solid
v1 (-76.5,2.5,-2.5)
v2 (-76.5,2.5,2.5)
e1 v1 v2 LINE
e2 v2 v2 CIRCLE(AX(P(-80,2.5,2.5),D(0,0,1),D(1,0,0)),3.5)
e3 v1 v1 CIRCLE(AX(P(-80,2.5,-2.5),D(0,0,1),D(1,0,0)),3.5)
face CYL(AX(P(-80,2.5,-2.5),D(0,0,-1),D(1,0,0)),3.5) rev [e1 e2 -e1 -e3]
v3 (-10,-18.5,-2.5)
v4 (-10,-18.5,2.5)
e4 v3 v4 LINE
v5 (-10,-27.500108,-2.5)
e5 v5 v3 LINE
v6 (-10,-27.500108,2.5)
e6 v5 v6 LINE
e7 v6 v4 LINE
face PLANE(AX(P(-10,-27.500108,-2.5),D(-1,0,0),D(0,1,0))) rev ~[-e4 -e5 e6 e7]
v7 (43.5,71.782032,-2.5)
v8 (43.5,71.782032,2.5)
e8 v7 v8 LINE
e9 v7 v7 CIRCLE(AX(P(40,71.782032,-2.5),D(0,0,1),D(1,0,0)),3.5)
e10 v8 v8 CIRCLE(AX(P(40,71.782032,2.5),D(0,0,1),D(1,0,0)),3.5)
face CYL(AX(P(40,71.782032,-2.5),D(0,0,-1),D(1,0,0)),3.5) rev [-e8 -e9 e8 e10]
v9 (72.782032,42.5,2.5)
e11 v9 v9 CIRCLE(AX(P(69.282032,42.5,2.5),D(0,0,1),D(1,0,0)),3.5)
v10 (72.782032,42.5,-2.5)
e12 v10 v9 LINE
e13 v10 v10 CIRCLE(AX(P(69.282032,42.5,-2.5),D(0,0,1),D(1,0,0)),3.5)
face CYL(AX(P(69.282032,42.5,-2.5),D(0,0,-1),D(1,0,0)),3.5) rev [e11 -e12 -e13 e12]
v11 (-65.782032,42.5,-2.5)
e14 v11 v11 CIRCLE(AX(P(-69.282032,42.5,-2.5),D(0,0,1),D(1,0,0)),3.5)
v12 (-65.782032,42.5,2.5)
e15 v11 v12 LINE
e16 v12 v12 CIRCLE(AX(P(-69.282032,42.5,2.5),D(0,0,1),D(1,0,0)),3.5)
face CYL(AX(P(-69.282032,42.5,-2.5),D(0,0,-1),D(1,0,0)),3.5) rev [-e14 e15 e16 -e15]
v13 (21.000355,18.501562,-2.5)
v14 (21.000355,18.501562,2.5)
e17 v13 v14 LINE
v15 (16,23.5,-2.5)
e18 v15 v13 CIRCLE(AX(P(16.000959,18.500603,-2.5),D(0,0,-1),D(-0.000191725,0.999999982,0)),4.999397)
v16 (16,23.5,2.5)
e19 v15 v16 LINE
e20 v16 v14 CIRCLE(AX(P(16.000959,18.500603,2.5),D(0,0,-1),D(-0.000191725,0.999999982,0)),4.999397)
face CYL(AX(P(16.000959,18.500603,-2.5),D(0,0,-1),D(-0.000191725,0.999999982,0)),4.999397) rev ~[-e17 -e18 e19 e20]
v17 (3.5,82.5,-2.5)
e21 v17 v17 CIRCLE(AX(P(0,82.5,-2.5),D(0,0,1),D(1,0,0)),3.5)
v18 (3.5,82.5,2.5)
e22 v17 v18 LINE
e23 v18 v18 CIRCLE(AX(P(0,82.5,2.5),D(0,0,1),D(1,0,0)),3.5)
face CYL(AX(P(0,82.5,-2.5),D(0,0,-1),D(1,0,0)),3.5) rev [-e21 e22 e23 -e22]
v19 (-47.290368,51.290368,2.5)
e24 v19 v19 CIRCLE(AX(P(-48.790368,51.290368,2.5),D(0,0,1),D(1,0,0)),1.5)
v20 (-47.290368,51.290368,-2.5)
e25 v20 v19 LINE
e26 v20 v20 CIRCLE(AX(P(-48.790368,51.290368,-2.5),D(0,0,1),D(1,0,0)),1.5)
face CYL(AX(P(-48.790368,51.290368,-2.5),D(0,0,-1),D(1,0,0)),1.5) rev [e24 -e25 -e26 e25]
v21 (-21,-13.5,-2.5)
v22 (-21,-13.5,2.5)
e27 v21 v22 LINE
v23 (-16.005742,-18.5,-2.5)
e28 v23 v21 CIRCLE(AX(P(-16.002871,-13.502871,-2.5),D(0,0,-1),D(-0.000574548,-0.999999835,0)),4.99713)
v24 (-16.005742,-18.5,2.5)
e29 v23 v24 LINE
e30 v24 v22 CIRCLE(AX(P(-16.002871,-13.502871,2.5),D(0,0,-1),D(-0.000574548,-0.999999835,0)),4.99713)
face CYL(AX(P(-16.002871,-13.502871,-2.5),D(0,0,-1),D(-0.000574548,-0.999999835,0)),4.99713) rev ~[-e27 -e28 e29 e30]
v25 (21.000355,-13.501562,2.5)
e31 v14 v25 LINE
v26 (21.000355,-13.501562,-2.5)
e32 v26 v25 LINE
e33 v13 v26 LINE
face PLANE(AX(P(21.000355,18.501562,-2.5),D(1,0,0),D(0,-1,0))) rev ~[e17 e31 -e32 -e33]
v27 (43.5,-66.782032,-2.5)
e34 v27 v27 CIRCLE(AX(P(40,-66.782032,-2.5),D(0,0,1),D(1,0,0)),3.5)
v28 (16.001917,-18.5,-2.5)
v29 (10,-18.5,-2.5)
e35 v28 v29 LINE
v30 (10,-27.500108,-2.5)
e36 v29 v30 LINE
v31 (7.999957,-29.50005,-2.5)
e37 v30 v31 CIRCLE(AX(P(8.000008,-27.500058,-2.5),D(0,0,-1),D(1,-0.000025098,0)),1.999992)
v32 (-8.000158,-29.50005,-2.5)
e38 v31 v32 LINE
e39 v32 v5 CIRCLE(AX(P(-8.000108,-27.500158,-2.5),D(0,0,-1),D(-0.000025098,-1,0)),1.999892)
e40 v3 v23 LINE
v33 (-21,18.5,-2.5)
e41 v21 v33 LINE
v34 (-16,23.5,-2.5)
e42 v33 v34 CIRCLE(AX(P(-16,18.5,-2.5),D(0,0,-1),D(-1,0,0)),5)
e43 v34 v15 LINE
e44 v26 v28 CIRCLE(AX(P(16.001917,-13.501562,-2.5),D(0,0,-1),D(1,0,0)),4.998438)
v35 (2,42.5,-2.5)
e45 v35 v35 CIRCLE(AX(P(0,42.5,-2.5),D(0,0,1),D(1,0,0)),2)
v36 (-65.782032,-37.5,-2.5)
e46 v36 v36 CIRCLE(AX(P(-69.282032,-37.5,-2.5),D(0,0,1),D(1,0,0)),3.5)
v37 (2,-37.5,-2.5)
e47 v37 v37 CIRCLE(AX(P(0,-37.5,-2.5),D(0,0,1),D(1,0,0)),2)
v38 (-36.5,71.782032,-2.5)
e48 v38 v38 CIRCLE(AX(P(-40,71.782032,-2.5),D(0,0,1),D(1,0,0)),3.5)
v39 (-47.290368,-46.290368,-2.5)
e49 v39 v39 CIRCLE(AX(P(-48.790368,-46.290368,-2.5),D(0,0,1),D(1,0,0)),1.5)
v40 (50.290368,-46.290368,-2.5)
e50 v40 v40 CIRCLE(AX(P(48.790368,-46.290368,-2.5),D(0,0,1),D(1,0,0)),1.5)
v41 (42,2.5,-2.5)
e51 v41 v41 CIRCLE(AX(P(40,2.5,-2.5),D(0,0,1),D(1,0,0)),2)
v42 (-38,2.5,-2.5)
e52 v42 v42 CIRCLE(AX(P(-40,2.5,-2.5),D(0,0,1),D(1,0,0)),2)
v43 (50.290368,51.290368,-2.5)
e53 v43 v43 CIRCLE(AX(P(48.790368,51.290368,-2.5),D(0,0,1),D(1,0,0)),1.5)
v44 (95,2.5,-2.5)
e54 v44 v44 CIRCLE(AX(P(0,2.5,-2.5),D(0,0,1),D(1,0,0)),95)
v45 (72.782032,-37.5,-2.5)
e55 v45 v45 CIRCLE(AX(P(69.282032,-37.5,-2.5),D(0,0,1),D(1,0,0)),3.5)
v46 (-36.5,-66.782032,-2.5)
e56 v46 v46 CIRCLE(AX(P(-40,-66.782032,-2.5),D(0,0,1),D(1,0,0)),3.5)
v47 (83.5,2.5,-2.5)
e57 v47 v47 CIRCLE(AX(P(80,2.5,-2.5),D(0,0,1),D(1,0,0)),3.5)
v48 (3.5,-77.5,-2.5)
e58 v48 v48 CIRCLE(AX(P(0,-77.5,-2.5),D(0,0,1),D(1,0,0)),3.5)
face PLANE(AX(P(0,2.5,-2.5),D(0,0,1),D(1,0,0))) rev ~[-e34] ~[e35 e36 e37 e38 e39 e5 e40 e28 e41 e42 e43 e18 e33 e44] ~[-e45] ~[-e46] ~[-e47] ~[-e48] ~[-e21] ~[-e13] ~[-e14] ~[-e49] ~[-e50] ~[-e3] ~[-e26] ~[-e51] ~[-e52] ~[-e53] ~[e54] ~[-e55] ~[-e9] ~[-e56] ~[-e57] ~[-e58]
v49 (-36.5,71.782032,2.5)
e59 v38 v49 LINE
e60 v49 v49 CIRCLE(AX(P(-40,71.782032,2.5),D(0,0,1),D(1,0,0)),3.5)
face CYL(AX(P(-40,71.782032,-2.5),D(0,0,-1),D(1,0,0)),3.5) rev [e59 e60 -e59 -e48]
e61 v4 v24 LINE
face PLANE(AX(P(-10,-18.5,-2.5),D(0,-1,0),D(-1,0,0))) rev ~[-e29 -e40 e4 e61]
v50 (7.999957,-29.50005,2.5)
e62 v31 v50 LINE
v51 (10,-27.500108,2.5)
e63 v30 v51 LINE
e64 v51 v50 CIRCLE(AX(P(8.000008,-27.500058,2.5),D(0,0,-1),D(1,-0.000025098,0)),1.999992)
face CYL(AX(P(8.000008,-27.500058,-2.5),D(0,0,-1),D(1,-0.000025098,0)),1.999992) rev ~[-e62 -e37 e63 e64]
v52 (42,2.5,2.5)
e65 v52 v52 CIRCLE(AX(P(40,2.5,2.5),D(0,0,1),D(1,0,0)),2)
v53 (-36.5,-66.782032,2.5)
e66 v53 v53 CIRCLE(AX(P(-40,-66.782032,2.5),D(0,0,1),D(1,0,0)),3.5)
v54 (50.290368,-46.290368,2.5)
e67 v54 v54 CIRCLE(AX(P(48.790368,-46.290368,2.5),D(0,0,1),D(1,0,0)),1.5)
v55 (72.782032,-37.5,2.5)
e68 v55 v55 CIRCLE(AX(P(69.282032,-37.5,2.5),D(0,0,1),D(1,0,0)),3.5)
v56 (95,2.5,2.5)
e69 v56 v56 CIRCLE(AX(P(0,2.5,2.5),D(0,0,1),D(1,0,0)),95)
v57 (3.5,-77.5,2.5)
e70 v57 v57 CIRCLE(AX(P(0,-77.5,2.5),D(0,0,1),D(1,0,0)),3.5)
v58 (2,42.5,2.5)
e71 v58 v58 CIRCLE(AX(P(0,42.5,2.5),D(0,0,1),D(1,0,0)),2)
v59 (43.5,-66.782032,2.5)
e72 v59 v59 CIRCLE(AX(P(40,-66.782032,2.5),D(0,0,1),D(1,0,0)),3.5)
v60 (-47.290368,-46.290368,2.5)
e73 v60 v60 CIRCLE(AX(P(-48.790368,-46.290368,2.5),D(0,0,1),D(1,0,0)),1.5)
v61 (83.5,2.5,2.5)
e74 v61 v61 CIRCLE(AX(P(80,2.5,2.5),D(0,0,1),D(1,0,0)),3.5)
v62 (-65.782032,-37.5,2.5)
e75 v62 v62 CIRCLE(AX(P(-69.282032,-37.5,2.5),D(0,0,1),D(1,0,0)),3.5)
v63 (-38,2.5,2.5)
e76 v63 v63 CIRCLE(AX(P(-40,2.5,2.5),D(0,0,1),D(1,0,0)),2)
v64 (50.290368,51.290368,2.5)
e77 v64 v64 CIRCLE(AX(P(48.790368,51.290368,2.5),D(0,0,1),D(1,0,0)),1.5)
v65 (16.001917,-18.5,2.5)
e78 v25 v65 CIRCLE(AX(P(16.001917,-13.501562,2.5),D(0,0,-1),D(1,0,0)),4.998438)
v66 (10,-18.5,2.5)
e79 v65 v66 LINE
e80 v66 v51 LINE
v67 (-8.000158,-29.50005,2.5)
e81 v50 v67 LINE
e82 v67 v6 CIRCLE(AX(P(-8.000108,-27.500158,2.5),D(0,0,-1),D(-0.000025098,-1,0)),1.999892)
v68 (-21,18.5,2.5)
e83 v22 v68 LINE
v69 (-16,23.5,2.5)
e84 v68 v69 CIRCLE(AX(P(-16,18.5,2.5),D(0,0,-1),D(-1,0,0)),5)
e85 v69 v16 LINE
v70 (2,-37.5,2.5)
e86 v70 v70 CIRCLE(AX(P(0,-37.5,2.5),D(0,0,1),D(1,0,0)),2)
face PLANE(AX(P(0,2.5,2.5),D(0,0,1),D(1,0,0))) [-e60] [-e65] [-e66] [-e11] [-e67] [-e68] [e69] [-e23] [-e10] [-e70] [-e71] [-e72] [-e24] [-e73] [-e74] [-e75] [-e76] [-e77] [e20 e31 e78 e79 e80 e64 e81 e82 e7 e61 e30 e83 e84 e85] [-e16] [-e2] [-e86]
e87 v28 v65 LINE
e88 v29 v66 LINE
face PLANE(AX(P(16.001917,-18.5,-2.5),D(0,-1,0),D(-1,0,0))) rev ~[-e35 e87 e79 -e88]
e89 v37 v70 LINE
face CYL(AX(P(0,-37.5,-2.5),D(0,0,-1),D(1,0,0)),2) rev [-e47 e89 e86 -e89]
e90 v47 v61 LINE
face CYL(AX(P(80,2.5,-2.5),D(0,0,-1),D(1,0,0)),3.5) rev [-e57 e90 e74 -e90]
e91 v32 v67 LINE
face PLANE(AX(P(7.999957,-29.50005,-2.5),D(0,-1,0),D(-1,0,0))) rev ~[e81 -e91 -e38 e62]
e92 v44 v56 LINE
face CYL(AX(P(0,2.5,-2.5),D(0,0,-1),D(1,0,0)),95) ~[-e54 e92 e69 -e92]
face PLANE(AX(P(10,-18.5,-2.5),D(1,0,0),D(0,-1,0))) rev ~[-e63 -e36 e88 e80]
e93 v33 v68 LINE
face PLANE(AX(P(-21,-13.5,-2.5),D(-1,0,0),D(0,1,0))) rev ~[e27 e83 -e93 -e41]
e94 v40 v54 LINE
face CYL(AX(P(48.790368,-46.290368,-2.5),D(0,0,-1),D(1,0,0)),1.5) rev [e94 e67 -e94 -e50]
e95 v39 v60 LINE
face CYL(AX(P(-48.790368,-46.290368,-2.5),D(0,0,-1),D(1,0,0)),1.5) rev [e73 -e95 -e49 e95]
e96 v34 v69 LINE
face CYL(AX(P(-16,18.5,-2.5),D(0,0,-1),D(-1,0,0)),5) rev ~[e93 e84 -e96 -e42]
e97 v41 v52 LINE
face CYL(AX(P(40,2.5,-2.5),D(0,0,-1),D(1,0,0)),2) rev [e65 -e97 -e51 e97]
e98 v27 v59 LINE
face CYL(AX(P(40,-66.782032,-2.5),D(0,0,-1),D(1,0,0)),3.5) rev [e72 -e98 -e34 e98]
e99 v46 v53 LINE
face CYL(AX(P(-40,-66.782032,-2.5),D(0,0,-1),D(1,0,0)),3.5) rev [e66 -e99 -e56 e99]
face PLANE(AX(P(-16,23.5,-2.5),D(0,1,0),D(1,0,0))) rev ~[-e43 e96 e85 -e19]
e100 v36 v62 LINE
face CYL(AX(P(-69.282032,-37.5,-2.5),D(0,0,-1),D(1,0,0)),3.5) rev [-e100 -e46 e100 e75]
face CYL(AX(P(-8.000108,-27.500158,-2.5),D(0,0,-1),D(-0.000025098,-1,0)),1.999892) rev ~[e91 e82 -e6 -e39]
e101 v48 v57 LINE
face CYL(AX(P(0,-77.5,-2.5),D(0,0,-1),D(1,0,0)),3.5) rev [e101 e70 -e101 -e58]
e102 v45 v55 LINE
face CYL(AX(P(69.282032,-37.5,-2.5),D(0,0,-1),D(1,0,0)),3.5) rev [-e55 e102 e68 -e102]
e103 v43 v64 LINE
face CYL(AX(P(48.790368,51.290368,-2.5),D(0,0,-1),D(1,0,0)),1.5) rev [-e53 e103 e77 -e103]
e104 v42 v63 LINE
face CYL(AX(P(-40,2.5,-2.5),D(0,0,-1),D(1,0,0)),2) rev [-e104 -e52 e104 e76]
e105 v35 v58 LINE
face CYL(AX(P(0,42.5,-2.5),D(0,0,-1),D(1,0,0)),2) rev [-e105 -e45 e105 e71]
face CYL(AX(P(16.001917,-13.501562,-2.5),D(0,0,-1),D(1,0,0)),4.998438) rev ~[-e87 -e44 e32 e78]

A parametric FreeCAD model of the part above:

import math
import FreeCAD as App
import Part
import Sketcher

doc = App.newDocument("Part")
body = doc.addObject("PartDesign::Body", "Body")

sketch1 = body.newObject("Sketcher::SketchObject", "Sketch")
sketch1.AttachmentSupport = (doc.getObject("XZ_Plane"), [""])
sketch1.MapMode = "FlatFace"
sketch1.addGeometry([
    Part.Circle(App.Vector(0, 0, 0), App.Vector(0, 0, 1), 95),
    Part.Circle(App.Vector(-48.8, 48.8, 0), App.Vector(0, 0, 1), 1.5),
    Part.Circle(App.Vector(-40, 69.3, 0), App.Vector(0, 0, 1), 3.5),
    Part.Circle(App.Vector(-69.3, 40, 0), App.Vector(0, 0, 1), 3.5),
    Part.Circle(App.Vector(0, 80, 0), App.Vector(0, 0, 1), 3.5),
    Part.Circle(App.Vector(40, 69.3, 0), App.Vector(0, 0, 1), 3.5),
    Part.Circle(App.Vector(48.8, 48.8, 0), App.Vector(0, 0, 1), 1.5),
    Part.Circle(App.Vector(0, 40, 0), App.Vector(0, 0, 1), 2),
    Part.LineSegment(App.Vector(16, 21, 0), App.Vector(10, 21, 0)),
    Part.LineSegment(App.Vector(10, 21, 0), App.Vector(10, 30, 0)),
    Part.ArcOfCircle(Part.Circle(App.Vector(8, 30, 0), App.Vector(0, 0, 1), 2), math.radians(0), math.radians(90)),
    Part.LineSegment(App.Vector(8, 32, 0), App.Vector(-8, 32, 0)),
    Part.ArcOfCircle(Part.Circle(App.Vector(-8, 30, 0), App.Vector(0, 0, 1), 2), math.radians(90), math.radians(180)),
    Part.LineSegment(App.Vector(-10, 30, 0), App.Vector(-10, 21, 0)),
    Part.LineSegment(App.Vector(-10, 21, 0), App.Vector(-16, 21, 0)),
    Part.ArcOfCircle(Part.Circle(App.Vector(-16, 16, 0), App.Vector(0, 0, 1), 5), math.radians(90), math.radians(180)),
    Part.LineSegment(App.Vector(-21, 16, 0), App.Vector(-21, -16, 0)),
    Part.ArcOfCircle(Part.Circle(App.Vector(-16, -16, 0), App.Vector(0, 0, 1), 5), math.radians(180), math.radians(270)),
    Part.LineSegment(App.Vector(-16, -21, 0), App.Vector(16, -21, 0)),
    Part.ArcOfCircle(Part.Circle(App.Vector(16, -16, 0), App.Vector(0, 0, 1), 5), math.radians(-90), math.radians(0)),
    Part.LineSegment(App.Vector(21, -16, 0), App.Vector(21, 16, 0)),
    Part.ArcOfCircle(Part.Circle(App.Vector(16, 16, 0), App.Vector(0, 0, 1), 5), math.radians(0), math.radians(90)),
    Part.Circle(App.Vector(69.3, 40, 0), App.Vector(0, 0, 1), 3.5),
    Part.Circle(App.Vector(-80, 0, 0), App.Vector(0, 0, 1), 3.5),
    Part.Circle(App.Vector(-69.3, -40, 0), App.Vector(0, 0, 1), 3.5),
    Part.Circle(App.Vector(-40, 0, 0), App.Vector(0, 0, 1), 2),
    Part.Circle(App.Vector(-48.8, -48.8, 0), App.Vector(0, 0, 1), 1.5),
    Part.Circle(App.Vector(-40, -69.3, 0), App.Vector(0, 0, 1), 3.5),
    Part.Circle(App.Vector(40, 0, 0), App.Vector(0, 0, 1), 2),
    Part.Circle(App.Vector(0, -40, 0), App.Vector(0, 0, 1), 2),
    Part.Circle(App.Vector(80, 0, 0), App.Vector(0, 0, 1), 3.5),
    Part.Circle(App.Vector(69.3, -40, 0), App.Vector(0, 0, 1), 3.5),
    Part.Circle(App.Vector(0, -80, 0), App.Vector(0, 0, 1), 3.5),
    Part.Circle(App.Vector(40, -69.3, 0), App.Vector(0, 0, 1), 3.5),
    Part.Circle(App.Vector(48.8, -48.8, 0), App.Vector(0, 0, 1), 1.5),
], False)
sketch1.addConstraint([
    Sketcher.Constraint("Coincident", 8, 2, 9, 1),
    Sketcher.Constraint("Coincident", 9, 2, 10, 1),
    Sketcher.Constraint("Coincident", 10, 2, 11, 1),
    Sketcher.Constraint("Coincident", 11, 2, 12, 1),
    Sketcher.Constraint("Coincident", 12, 2, 13, 1),
    Sketcher.Constraint("Coincident", 13, 2, 14, 1),
    Sketcher.Constraint("Coincident", 14, 2, 15, 1),
    Sketcher.Constraint("Coincident", 15, 2, 16, 1),
    Sketcher.Constraint("Tangent", 16, 2, 17, 1),
    Sketcher.Constraint("Tangent", 17, 2, 18, 1),
    Sketcher.Constraint("Coincident", 18, 2, 19, 1),
    Sketcher.Constraint("Coincident", 19, 2, 20, 1),
    Sketcher.Constraint("Tangent", 20, 2, 21, 1),
    Sketcher.Constraint("Tangent", 21, 2, 8, 1),
    Sketcher.Constraint("Horizontal", 8),
    Sketcher.Constraint("Vertical", 9),
    Sketcher.Constraint("Horizontal", 11),
    Sketcher.Constraint("Vertical", 13),
    Sketcher.Constraint("Horizontal", 14),
    Sketcher.Constraint("Vertical", 16),
    Sketcher.Constraint("Horizontal", 18),
    Sketcher.Constraint("Vertical", 20),
    Sketcher.Constraint("Coincident", 0, 3, -1, 1),
    Sketcher.Constraint("Equal", 2, 3),
    Sketcher.Constraint("Equal", 3, 4),
    Sketcher.Constraint("Equal", 4, 5),
    Sketcher.Constraint("Equal", 1, 6),
    Sketcher.Constraint("Equal", 5, 22),
    Sketcher.Constraint("Equal", 22, 23),
    Sketcher.Constraint("Equal", 23, 24),
    Sketcher.Constraint("Equal", 7, 25),
    Sketcher.Constraint("Equal", 6, 26),
    Sketcher.Constraint("Equal", 24, 27),
    Sketcher.Constraint("Equal", 25, 28),
    Sketcher.Constraint("Equal", 28, 29),
    Sketcher.Constraint("Equal", 27, 30),
    Sketcher.Constraint("Equal", 30, 31),
    Sketcher.Constraint("Equal", 31, 32),
    Sketcher.Constraint("Equal", 32, 33),
    Sketcher.Constraint("Equal", 26, 34),
    Sketcher.Constraint("Symmetric", 22, 3, 24, 3, -1, 1),
    Sketcher.Constraint("Symmetric", 6, 3, 26, 3, -1, 1),
    Sketcher.Constraint("Symmetric", 5, 3, 27, 3, -1, 1),
    Sketcher.Constraint("Symmetric", 25, 3, 28, 3, -1, 1),
    Sketcher.Constraint("Symmetric", 7, 3, 29, 3, -1, 1),
    Sketcher.Constraint("Symmetric", 23, 3, 30, 3, -1, 1),
    Sketcher.Constraint("Symmetric", 3, 3, 31, 3, -1, 1),
    Sketcher.Constraint("Symmetric", 4, 3, 32, 3, -1, 1),
    Sketcher.Constraint("Symmetric", 2, 3, 33, 3, -1, 1),
    Sketcher.Constraint("Symmetric", 1, 3, 34, 3, -1, 1),
    Sketcher.Constraint("Symmetric", 2, 3, 5, 3, -2),
    Sketcher.Constraint("Symmetric", 1, 3, 6, 3, -2),
    Sketcher.Constraint("Symmetric", 3, 3, 22, 3, -2),
    Sketcher.Constraint("Symmetric", 9, 2, 12, 2, -2),
    Sketcher.Constraint("PointOnObject", 4, 3, -2),
    Sketcher.Constraint("PointOnObject", 7, 3, -2),
    Sketcher.Constraint("PointOnObject", 23, 3, -1),
    Sketcher.Constraint("PointOnObject", 25, 3, -1),
    Sketcher.Constraint("Horizontal", 3, 3, 7, 3),
    Sketcher.Constraint("Horizontal", 8, 2, 13, 2),
    Sketcher.Constraint("Vertical", 2, 3, 25, 3),
    Sketcher.Constraint("Equal", 18, 16),
    Sketcher.Constraint("Diameter", 0, 190.0),
    Sketcher.Constraint("Diameter", 1, 3.0),
    Sketcher.Constraint("Diameter", 2, 7.0),
    Sketcher.Constraint("Diameter", 7, 4.0),
    Sketcher.Constraint("Radius", 17, 5.0),
    Sketcher.Constraint("DistanceX", 18, 1, 18, 2, 32.0),
    Sketcher.Constraint("DistanceX", 2, 3, -1, 1, 40.0),
    Sketcher.Constraint("DistanceY", -1, 1, 3, 3, 40.0),
    Sketcher.Constraint("DistanceY", -1, 1, 4, 3, 80.0),
    Sketcher.Constraint("DistanceX", 17, 3, -1, 1, 16.0),
    Sketcher.Constraint("DistanceY", 17, 3, -1, 1, 16.0),
    Sketcher.Constraint("DistanceX", 23, 3, -1, 1, 80.0),
    Sketcher.Constraint("DistanceX", -1, 1, 8, 2, 10.0),
    Sketcher.Constraint("DistanceY", -1, 1, 8, 2, 21.0),
    Sketcher.Constraint("Radius", 12, 1.999892),
    Sketcher.Constraint("Radius", 15, 4.99713),
    Sketcher.Constraint("Radius", 21, 4.998438),
    Sketcher.Constraint("Radius", 10, 1.999992),
    Sketcher.Constraint("Radius", 19, 4.999397),
    Sketcher.Constraint("DistanceY", 9, 1, 9, 2, 9.000108),
    Sketcher.Constraint("DistanceX", 8, 2, 8, 1, 6.001917),
    Sketcher.Constraint("DistanceX", 11, 2, 11, 1, 16.000116),
    Sketcher.Constraint("DistanceX", 14, 2, 14, 1, 6.005742),
    Sketcher.Constraint("DistanceY", 20, 1, 20, 2, 32.003124),
    Sketcher.Constraint("DistanceY", -1, 1, 12, 3, 30.000158),
    Sketcher.Constraint("DistanceX", 11, 2, -1, 1, 8.000158),
    Sketcher.Constraint("DistanceX", 10, 3, 6, 3, 40.79036),
    Sketcher.Constraint("DistanceY", 10, 3, 6, 3, 18.79031),
    Sketcher.Constraint("DistanceX", 24, 3, 15, 3, 53.279161),
    Sketcher.Constraint("DistanceY", 27, 3, 19, 3, 53.281429),
])
pad1 = body.newObject("PartDesign::Pad", "Pad")
pad1.Profile = sketch1
pad1.Length = 5
pad1.Reversed = True
body2 = doc.addObject("PartDesign::Body", "Body001")
doc.recompute()

body.Placement = App.Placement(App.Vector(0, 2.5, -2.5), App.Rotation(App.Vector(1, 0, 0), 90))
boolean = body2.newObject("PartDesign::Boolean", "Boolean")
boolean.Type = "Fuse"
boolean.addObjects([body])

doc.recompute()
